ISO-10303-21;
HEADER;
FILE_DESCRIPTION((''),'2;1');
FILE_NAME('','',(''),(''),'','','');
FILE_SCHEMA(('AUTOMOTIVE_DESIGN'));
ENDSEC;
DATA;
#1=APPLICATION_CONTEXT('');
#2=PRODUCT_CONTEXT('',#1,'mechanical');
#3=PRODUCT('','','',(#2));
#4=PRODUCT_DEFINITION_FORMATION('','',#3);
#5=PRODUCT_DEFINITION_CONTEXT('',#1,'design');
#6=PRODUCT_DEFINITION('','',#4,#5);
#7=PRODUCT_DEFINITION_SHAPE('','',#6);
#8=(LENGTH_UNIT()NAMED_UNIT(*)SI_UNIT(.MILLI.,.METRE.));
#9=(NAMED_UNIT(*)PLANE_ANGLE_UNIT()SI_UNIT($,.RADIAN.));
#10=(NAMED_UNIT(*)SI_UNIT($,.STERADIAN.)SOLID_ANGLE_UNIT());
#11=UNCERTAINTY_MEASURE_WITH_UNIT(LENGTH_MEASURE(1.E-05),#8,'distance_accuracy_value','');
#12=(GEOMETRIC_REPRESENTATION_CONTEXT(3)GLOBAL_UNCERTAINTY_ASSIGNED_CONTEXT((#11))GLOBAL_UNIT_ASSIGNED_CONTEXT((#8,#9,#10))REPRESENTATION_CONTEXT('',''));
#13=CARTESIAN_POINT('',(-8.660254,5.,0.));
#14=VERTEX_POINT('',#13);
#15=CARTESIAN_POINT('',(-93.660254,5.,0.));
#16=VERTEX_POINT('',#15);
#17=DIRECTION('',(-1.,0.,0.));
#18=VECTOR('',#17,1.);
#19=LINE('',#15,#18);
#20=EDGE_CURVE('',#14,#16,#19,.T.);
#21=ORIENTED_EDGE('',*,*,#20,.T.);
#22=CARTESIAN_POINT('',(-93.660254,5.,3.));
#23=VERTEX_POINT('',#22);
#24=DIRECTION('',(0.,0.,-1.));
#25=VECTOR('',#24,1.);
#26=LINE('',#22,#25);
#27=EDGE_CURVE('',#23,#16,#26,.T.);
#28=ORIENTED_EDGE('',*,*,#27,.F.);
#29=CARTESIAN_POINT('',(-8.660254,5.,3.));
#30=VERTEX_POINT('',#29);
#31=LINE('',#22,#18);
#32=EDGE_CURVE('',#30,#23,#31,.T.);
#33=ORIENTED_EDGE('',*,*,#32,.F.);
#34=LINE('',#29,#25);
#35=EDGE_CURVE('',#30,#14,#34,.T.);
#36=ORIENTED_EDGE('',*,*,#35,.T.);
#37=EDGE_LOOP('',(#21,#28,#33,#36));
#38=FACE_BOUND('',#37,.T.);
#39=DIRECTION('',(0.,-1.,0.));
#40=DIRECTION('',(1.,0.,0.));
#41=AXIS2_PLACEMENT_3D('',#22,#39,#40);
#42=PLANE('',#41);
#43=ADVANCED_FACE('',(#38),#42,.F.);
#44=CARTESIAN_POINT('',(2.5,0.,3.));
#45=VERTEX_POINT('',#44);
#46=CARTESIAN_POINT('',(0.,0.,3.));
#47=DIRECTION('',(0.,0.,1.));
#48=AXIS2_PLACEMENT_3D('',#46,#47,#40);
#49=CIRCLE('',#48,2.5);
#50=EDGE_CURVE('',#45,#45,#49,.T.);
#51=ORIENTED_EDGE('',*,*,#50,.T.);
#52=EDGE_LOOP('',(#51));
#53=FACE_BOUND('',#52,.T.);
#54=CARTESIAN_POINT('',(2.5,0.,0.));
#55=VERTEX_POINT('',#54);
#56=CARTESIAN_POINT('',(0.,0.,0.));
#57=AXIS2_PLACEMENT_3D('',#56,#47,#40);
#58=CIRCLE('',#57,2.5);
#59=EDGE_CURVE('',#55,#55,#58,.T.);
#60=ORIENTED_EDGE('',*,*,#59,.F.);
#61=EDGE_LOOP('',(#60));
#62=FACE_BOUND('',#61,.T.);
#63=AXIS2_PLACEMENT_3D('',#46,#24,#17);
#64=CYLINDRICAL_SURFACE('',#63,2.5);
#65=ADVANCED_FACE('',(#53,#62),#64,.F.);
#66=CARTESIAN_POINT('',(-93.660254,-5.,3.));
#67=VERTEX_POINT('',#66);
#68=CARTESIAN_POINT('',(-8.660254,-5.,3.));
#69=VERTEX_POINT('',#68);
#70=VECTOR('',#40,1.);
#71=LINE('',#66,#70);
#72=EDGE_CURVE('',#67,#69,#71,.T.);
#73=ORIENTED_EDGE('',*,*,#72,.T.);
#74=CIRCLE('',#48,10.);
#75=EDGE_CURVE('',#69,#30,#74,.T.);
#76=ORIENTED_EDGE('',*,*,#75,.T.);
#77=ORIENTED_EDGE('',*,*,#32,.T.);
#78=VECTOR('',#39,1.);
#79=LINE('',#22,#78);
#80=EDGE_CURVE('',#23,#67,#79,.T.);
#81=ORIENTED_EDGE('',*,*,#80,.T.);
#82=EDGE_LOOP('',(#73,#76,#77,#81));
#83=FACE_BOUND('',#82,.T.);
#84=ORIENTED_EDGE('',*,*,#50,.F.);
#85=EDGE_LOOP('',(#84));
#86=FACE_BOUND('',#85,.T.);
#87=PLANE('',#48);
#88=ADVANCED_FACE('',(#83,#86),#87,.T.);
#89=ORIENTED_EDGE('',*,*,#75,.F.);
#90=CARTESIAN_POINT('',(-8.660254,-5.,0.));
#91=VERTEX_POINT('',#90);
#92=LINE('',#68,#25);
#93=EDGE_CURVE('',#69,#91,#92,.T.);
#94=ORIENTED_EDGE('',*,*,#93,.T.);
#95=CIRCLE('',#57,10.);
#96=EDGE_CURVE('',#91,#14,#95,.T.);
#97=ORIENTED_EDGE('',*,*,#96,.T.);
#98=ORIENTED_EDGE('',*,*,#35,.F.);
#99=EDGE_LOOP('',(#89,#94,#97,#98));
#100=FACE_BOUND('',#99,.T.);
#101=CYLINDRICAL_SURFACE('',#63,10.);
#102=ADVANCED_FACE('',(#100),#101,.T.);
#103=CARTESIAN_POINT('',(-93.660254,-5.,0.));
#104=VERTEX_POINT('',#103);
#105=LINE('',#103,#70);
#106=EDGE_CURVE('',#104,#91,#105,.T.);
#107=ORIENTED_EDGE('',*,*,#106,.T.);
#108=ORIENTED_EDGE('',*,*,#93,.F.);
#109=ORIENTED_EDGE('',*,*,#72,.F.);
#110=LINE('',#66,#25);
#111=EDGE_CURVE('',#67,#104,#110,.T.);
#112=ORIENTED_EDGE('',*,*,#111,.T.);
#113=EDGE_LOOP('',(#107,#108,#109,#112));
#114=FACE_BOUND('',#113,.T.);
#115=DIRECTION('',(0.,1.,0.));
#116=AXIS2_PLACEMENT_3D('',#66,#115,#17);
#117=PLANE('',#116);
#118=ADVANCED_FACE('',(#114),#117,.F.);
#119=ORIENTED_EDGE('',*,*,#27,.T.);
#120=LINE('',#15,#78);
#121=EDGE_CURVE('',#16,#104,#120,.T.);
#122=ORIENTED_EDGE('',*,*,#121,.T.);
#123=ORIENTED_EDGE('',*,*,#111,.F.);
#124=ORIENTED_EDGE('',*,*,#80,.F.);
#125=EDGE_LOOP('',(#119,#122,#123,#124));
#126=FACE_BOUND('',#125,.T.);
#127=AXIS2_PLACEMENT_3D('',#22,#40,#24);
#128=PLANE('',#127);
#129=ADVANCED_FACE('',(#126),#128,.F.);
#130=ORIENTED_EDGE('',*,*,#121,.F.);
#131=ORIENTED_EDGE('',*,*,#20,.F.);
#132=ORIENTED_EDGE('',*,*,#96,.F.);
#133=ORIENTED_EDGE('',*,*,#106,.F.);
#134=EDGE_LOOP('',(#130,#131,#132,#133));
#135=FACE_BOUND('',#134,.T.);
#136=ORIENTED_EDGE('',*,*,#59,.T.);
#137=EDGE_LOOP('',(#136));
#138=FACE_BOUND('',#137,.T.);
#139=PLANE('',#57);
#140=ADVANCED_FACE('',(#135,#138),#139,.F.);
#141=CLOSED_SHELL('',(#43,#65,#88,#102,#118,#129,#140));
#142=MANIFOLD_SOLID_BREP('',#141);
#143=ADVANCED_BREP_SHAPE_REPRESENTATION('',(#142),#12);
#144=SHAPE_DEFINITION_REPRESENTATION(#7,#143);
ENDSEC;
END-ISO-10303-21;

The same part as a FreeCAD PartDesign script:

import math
import FreeCAD as App
import Part
import Sketcher
from FreeCAD import Vector

doc = App.newDocument("Part")
params = doc.addObject("Spreadsheet::Sheet", "Params")
for row, (alias, value) in enumerate([
    ("sketch1_diameter", "5 mm"),
    ("sketch1_radius", "10 mm"),
    ("sketch1_width", "85 mm"),
    ("sketch1_height", "10 mm"),
    ("pad1_length", "3 mm"),
], start=1):
    params.set(f"A{row}", alias)
    params.set(f"B{row}", "=" + value)
    params.setAlias(f"B{row}", alias)

body = doc.addObject("PartDesign::Body", "Body")

# Sketch on XY plane
sketch1 = body.newObject("Sketcher::SketchObject", "Sketch")
sketch1.AttachmentSupport = (doc.getObject("XY_Plane"), [""])
sketch1.MapMode = "FlatFace"
sketch1.addGeometry(Part.LineSegment(Vector(-8.660254, 5, 0), Vector(-93.660254, 5, 0)), False)
sketch1.addGeometry(Part.LineSegment(Vector(-93.660254, 5, 0), Vector(-93.660254, -5, 0)), False)
sketch1.addGeometry(Part.LineSegment(Vector(-93.660254, -5, 0), Vector(-8.660254, -5, 0)), False)
sketch1.addGeometry(Part.ArcOfCircle(Part.Circle(Vector(0, 0, 0), Vector(0, 0, 1), 10), math.radians(-150), math.radians(150)), False)
sketch1.addGeometry(Part.Circle(Vector(0, 0, 0), Vector(0, 0, 1), 2.5), False)
sketch1.addConstraint(Sketcher.Constraint("Coincident", 0, 2, 1, 1))
sketch1.addConstraint(Sketcher.Constraint("Coincident", 1, 2, 2, 1))
sketch1.addConstraint(Sketcher.Constraint("Coincident", 2, 2, 3, 1))
sketch1.addConstraint(Sketcher.Constraint("Coincident", 3, 2, 0, 1))
sketch1.addConstraint(Sketcher.Constraint("Horizontal", 0))
sketch1.addConstraint(Sketcher.Constraint("Vertical", 1))
sketch1.addConstraint(Sketcher.Constraint("Horizontal", 2))
sketch1.addConstraint(Sketcher.Constraint("Coincident", 3, 3, -1, 1))
sketch1.addConstraint(Sketcher.Constraint("Coincident", 4, 3, -1, 1))
sketch1.addConstraint(Sketcher.Constraint("Vertical", 2, 2, 3, 2))
sketch1.addConstraint(Sketcher.Constraint("Diameter", 4, 5.0))
sketch1.addConstraint(Sketcher.Constraint("Radius", 3, 10.0))
sketch1.addConstraint(Sketcher.Constraint("DistanceX", 0, 2, 0, 1, 85.0))
sketch1.addConstraint(Sketcher.Constraint("DistanceY", 1, 2, 1, 1, 10.0))
sketch1.setExpression("Constraints[10]", "Params.sketch1_diameter")
sketch1.setExpression("Constraints[11]", "Params.sketch1_radius")
sketch1.setExpression("Constraints[12]", "Params.sketch1_width")
sketch1.setExpression("Constraints[13]", "Params.sketch1_height")
pad1 = body.newObject("PartDesign::Pad", "Pad")
pad1.Profile = sketch1
pad1.setExpression("Length", "Params.pad1_length")

doc.recompute()
